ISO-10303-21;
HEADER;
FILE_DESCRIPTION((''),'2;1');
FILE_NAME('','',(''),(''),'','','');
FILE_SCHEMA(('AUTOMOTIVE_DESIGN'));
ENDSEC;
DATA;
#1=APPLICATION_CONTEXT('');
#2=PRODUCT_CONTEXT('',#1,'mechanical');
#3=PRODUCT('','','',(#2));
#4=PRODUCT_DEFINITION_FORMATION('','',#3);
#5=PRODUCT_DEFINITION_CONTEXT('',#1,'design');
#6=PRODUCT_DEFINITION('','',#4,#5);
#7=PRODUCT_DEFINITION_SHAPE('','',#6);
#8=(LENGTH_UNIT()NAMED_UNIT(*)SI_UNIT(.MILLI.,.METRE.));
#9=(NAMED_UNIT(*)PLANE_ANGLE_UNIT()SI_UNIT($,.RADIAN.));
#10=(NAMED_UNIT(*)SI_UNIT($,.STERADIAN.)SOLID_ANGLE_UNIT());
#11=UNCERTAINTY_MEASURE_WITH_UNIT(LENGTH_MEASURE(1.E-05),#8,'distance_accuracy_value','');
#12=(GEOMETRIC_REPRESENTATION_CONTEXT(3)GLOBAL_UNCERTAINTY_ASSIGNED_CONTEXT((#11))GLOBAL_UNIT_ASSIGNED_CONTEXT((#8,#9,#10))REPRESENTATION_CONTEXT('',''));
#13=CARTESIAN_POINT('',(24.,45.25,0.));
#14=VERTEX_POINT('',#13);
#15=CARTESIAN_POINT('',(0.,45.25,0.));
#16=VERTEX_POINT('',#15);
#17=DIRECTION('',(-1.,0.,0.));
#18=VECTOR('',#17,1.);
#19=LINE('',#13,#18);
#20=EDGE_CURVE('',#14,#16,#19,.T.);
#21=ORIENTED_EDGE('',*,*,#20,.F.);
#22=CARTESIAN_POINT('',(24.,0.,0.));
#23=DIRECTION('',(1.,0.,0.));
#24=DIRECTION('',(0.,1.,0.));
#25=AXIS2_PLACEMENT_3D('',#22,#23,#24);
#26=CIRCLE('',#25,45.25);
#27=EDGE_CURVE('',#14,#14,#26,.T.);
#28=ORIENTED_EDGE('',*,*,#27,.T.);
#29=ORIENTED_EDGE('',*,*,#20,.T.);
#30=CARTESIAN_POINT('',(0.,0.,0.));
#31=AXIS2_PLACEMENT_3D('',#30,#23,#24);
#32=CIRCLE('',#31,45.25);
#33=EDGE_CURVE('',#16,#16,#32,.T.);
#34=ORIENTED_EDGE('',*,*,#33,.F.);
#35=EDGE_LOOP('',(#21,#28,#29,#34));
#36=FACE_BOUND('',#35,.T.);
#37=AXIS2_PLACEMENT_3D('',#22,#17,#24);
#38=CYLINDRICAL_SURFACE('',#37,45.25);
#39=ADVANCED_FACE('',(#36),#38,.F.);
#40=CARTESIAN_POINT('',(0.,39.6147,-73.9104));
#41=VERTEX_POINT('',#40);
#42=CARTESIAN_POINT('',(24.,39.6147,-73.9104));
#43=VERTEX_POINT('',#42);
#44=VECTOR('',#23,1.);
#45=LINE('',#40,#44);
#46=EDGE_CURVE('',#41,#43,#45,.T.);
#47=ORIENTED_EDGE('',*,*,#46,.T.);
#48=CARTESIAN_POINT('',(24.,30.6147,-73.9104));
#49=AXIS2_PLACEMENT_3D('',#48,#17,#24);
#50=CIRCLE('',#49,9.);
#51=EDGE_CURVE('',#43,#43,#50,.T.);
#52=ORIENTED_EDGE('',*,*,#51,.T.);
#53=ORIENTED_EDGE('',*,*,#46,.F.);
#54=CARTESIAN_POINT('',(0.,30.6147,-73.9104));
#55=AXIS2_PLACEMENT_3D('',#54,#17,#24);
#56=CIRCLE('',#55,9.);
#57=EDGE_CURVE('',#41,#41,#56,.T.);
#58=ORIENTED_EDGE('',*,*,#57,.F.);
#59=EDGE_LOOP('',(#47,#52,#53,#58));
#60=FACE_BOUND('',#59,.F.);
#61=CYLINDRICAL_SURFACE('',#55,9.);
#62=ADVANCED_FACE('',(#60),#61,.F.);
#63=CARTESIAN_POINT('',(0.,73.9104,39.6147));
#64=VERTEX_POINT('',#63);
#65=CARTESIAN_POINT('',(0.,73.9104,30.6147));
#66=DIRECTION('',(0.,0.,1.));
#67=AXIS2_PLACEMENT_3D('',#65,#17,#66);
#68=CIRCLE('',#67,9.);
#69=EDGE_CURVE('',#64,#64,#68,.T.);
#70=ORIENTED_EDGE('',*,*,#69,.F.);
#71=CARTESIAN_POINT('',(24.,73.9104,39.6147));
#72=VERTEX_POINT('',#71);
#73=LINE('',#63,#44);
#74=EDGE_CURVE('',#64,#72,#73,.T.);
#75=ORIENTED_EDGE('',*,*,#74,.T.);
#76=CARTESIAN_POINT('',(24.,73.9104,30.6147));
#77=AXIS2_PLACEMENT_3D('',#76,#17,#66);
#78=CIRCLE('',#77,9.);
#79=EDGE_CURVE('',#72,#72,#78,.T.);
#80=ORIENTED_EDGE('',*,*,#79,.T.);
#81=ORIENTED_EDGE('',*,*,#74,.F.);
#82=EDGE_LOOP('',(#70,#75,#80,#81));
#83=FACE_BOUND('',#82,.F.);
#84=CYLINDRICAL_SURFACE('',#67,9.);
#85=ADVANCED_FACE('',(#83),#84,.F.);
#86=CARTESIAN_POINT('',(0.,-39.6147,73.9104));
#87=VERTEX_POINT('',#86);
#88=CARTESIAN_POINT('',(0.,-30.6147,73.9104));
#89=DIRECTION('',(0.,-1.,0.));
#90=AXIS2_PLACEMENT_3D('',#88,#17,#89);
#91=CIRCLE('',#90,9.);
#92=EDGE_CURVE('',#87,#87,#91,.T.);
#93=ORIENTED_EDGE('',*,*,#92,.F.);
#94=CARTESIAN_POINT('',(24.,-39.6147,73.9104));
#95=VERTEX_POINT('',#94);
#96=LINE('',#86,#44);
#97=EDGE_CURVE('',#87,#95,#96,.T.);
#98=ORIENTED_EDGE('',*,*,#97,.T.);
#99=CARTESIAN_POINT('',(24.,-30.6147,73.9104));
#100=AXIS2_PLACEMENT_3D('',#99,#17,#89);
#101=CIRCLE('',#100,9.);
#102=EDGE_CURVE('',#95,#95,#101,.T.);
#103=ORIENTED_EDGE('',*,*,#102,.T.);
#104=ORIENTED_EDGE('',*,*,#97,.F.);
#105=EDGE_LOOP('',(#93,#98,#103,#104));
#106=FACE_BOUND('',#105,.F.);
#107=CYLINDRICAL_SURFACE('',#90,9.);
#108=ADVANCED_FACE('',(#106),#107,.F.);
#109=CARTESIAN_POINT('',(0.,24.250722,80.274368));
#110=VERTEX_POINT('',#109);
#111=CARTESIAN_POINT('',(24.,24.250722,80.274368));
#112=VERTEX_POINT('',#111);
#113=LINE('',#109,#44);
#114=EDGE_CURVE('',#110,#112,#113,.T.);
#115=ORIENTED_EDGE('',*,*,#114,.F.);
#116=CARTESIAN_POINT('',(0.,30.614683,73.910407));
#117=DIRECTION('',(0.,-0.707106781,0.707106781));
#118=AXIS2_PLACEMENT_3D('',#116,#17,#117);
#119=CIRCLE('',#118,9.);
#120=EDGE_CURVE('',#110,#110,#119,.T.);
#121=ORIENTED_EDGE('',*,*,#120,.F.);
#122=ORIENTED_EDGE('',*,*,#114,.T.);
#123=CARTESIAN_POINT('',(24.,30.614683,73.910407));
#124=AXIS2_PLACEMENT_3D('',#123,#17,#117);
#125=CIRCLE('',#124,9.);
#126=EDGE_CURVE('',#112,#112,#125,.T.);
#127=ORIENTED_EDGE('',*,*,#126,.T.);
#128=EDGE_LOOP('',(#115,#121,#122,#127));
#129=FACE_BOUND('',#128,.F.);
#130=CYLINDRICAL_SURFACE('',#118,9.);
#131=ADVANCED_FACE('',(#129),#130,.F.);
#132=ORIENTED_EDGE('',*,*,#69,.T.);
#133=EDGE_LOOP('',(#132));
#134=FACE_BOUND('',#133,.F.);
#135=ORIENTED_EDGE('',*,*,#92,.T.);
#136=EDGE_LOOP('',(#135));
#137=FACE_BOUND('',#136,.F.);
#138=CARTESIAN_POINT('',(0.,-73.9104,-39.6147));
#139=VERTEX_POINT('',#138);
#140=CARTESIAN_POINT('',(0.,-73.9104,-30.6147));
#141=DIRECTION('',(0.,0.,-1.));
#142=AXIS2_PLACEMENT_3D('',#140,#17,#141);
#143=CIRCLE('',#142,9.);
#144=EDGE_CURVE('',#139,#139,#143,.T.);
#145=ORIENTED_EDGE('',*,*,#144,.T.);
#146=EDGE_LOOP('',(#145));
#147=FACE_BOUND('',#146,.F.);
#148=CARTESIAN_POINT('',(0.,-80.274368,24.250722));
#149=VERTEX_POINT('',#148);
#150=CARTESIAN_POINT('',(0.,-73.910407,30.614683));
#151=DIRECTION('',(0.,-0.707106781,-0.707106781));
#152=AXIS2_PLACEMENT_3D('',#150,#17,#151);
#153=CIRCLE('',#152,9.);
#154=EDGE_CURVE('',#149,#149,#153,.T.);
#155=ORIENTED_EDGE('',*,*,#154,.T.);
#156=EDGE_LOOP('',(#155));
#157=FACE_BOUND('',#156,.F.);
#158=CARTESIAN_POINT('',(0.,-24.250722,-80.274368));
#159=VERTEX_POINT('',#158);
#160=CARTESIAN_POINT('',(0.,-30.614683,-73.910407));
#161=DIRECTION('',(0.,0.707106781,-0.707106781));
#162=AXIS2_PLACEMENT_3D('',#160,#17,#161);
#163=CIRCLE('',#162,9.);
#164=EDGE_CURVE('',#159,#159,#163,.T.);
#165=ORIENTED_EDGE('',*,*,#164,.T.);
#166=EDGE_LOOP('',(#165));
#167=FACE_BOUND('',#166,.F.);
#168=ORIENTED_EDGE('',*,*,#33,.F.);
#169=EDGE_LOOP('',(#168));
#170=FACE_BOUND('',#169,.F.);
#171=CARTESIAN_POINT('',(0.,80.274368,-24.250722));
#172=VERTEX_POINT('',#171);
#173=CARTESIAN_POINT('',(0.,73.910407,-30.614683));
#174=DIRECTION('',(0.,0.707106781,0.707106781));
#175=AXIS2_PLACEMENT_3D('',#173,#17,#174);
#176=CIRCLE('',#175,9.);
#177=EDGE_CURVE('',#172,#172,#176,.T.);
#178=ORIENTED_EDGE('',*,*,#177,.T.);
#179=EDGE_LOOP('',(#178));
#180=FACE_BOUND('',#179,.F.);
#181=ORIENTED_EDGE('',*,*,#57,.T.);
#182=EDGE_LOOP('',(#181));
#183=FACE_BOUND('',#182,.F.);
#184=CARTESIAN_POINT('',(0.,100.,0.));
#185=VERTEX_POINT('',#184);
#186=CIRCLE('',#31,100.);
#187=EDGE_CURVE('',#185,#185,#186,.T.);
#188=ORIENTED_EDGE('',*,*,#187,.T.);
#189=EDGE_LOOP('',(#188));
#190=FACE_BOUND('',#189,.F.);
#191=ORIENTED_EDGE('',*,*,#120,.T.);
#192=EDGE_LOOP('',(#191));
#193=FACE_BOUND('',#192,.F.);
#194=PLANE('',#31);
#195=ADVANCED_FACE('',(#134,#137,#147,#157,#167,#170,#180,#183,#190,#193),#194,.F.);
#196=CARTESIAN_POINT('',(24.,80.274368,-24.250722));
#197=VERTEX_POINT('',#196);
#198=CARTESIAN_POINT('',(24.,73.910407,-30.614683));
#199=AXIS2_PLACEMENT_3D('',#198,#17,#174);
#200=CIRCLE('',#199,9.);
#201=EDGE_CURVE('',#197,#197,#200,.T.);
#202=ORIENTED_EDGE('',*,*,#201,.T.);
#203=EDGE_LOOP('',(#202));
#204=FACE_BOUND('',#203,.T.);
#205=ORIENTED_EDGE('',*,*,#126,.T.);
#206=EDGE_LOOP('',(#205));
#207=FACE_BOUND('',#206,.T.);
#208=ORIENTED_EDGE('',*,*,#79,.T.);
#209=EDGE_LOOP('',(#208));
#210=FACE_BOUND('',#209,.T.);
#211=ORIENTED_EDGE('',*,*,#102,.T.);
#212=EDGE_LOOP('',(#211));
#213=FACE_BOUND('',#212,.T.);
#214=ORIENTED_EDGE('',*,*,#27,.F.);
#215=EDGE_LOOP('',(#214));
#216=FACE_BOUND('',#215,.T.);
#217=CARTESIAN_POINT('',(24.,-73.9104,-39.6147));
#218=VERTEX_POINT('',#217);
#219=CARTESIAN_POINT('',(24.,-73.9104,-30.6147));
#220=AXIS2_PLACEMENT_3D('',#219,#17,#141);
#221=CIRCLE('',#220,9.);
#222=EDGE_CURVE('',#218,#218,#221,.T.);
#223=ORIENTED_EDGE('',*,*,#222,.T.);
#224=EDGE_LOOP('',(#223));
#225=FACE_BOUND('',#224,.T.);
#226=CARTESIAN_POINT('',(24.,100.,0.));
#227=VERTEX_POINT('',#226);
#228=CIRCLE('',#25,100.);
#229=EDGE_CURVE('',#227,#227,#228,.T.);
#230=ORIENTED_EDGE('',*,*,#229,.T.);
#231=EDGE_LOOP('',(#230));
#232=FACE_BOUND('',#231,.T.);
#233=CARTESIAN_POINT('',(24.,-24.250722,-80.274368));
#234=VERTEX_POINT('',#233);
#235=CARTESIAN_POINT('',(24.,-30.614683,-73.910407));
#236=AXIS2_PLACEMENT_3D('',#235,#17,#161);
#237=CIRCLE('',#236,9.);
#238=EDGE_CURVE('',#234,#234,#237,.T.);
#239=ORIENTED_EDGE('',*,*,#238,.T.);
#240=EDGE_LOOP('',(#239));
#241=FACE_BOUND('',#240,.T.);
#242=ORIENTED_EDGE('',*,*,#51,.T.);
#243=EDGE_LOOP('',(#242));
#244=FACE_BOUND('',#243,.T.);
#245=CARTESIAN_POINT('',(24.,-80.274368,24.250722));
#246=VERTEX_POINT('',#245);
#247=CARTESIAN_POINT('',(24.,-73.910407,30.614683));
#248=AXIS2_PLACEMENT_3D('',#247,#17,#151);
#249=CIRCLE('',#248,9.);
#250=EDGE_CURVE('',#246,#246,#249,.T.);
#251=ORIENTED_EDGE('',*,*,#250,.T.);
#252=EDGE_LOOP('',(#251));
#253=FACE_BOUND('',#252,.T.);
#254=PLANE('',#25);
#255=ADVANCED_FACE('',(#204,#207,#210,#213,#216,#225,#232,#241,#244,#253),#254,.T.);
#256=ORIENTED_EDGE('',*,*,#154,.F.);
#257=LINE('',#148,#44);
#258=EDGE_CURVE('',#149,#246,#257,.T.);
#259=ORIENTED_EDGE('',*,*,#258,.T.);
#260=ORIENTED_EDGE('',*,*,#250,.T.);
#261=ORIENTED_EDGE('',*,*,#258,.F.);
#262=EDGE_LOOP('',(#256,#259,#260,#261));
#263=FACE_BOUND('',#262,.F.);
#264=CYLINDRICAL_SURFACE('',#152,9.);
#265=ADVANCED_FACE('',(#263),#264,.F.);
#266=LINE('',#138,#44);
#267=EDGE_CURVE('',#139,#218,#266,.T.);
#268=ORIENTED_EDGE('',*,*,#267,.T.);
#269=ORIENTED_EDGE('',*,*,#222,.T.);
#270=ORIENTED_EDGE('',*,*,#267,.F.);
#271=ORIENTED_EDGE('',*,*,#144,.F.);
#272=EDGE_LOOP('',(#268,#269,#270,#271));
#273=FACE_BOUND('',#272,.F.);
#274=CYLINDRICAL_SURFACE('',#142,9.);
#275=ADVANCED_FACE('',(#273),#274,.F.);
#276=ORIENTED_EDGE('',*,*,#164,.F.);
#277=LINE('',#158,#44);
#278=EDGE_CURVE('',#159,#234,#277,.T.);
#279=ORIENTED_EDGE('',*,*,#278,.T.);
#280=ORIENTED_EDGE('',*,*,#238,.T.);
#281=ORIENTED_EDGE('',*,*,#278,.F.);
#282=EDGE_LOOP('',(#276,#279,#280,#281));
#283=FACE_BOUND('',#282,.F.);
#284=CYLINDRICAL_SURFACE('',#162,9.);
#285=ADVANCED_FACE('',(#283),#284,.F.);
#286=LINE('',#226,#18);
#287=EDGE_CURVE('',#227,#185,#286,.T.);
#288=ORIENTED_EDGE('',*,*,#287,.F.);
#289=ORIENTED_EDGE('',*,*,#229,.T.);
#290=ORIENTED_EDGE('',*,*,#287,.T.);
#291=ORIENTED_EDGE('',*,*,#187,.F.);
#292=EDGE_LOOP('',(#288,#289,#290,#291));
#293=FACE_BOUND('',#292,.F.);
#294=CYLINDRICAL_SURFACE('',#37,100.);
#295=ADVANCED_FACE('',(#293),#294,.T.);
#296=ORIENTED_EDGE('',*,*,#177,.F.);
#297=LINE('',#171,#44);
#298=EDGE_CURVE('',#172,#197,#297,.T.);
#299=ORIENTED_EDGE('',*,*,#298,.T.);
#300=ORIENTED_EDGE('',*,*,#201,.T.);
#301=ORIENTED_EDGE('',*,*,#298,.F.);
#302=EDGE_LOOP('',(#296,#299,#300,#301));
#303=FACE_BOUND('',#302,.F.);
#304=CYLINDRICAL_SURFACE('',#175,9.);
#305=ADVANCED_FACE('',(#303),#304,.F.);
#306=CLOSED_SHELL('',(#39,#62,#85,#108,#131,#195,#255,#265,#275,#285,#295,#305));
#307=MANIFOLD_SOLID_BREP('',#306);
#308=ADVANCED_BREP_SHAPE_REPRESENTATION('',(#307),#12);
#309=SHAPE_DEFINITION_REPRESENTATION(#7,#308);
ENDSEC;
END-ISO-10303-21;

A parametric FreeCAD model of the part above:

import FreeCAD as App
import Part
import Sketcher
from FreeCAD import Vector

doc = App.newDocument("Part")
params = doc.addObject("Spreadsheet::Sheet", "Params")
for row, (alias, value) in enumerate([
    ("sketch1_width", "24 mm"),
    ("sketch1_height", "54.75 mm"),
    ("revolution_angle", "360 deg"),
    ("sketch2_diameter", "18 mm"),
], start=1):
    params.set(f"A{row}", alias)
    params.set(f"B{row}", "=" + value)
    params.setAlias(f"B{row}", alias)

body = doc.addObject("PartDesign::Body", "Body")

sketch1 = doc.addObject("Sketcher::SketchObject", "Sketch")
body.addObject(sketch1)
sketch1.AttachmentSupport = (doc.XY_Plane, [""])
sketch1.MapMode = "FlatFace"
sketch1.addGeometry(Part.LineSegment(Vector(24, 45, 0), Vector(24, 100, 0)), False)
sketch1.addGeometry(Part.LineSegment(Vector(24, 100, 0), Vector(0, 100, 0)), False)
sketch1.addGeometry(Part.LineSegment(Vector(0, 100, 0), Vector(0, 45, 0)), False)
sketch1.addGeometry(Part.LineSegment(Vector(0, 45, 0), Vector(24, 45, 0)), False)
sketch1.addConstraint(Sketcher.Constraint("Coincident", 0, 2, 1, 1))
sketch1.addConstraint(Sketcher.Constraint("Coincident", 1, 2, 2, 1))
sketch1.addConstraint(Sketcher.Constraint("Coincident", 2, 2, 3, 1))
sketch1.addConstraint(Sketcher.Constraint("Coincident", 3, 2, 0, 1))
sketch1.addConstraint(Sketcher.Constraint("Vertical", 0))
sketch1.addConstraint(Sketcher.Constraint("Horizontal", 1))
sketch1.addConstraint(Sketcher.Constraint("Vertical", 2))
sketch1.addConstraint(Sketcher.Constraint("Horizontal", 3))
sketch1.addConstraint(Sketcher.Constraint("PointOnObject", 1, 2, -2))
sketch1.addConstraint(Sketcher.Constraint("DistanceX", 1, 2, 1, 1, 24.0))
sketch1.addConstraint(Sketcher.Constraint("DistanceY", -1, 1, 0, 2, 100.0))
sketch1.addConstraint(Sketcher.Constraint("DistanceY", 0, 1, 0, 2, 54.75))
sketch1.setExpression("Constraints[9]", "Params.sketch1_width")
sketch1.setExpression("Constraints[11]", "Params.sketch1_height")
revolution = doc.addObject("PartDesign::Revolution", "Revolution")
body.addObject(revolution)
revolution.Profile = sketch1
revolution.ReferenceAxis = (sketch1, ["H_Axis"])
revolution.setExpression("Angle", "Params.revolution_angle")

sketch2 = doc.addObject("Sketcher::SketchObject", "Sketch001")
body.addObject(sketch2)
sketch2.AttachmentSupport = (doc.YZ_Plane, [""])
sketch2.MapMode = "FlatFace"
sketch2.addGeometry(Part.Circle(Vector(74, 31, 0), Vector(0, 0, 1), 9), False)
sketch2.addConstraint(Sketcher.Constraint("Diameter", 0, 18.0))
sketch2.addConstraint(Sketcher.Constraint("DistanceX", -1, 1, 0, 3, 73.9104))
sketch2.addConstraint(Sketcher.Constraint("DistanceY", -1, 1, 0, 3, 30.6147))
sketch2.setExpression("Constraints[0]", "Params.sketch2_diameter")
pocket1 = doc.addObject("PartDesign::Pocket", "Pocket")
body.addObject(pocket1)
pocket1.Profile = sketch2
pocket1.Type = "ThroughAll"
pocket1.Reversed = True
doc.recompute()

polarpattern = doc.addObject("PartDesign::PolarPattern", "PolarPattern")
body.addObject(polarpattern)
polarpattern.Originals = [pocket1]
polarpattern.Axis = (doc.X_Axis, [""])
polarpattern.Angle = 360
polarpattern.Occurrences = 8
body.Tip = polarpattern

doc.recompute()
